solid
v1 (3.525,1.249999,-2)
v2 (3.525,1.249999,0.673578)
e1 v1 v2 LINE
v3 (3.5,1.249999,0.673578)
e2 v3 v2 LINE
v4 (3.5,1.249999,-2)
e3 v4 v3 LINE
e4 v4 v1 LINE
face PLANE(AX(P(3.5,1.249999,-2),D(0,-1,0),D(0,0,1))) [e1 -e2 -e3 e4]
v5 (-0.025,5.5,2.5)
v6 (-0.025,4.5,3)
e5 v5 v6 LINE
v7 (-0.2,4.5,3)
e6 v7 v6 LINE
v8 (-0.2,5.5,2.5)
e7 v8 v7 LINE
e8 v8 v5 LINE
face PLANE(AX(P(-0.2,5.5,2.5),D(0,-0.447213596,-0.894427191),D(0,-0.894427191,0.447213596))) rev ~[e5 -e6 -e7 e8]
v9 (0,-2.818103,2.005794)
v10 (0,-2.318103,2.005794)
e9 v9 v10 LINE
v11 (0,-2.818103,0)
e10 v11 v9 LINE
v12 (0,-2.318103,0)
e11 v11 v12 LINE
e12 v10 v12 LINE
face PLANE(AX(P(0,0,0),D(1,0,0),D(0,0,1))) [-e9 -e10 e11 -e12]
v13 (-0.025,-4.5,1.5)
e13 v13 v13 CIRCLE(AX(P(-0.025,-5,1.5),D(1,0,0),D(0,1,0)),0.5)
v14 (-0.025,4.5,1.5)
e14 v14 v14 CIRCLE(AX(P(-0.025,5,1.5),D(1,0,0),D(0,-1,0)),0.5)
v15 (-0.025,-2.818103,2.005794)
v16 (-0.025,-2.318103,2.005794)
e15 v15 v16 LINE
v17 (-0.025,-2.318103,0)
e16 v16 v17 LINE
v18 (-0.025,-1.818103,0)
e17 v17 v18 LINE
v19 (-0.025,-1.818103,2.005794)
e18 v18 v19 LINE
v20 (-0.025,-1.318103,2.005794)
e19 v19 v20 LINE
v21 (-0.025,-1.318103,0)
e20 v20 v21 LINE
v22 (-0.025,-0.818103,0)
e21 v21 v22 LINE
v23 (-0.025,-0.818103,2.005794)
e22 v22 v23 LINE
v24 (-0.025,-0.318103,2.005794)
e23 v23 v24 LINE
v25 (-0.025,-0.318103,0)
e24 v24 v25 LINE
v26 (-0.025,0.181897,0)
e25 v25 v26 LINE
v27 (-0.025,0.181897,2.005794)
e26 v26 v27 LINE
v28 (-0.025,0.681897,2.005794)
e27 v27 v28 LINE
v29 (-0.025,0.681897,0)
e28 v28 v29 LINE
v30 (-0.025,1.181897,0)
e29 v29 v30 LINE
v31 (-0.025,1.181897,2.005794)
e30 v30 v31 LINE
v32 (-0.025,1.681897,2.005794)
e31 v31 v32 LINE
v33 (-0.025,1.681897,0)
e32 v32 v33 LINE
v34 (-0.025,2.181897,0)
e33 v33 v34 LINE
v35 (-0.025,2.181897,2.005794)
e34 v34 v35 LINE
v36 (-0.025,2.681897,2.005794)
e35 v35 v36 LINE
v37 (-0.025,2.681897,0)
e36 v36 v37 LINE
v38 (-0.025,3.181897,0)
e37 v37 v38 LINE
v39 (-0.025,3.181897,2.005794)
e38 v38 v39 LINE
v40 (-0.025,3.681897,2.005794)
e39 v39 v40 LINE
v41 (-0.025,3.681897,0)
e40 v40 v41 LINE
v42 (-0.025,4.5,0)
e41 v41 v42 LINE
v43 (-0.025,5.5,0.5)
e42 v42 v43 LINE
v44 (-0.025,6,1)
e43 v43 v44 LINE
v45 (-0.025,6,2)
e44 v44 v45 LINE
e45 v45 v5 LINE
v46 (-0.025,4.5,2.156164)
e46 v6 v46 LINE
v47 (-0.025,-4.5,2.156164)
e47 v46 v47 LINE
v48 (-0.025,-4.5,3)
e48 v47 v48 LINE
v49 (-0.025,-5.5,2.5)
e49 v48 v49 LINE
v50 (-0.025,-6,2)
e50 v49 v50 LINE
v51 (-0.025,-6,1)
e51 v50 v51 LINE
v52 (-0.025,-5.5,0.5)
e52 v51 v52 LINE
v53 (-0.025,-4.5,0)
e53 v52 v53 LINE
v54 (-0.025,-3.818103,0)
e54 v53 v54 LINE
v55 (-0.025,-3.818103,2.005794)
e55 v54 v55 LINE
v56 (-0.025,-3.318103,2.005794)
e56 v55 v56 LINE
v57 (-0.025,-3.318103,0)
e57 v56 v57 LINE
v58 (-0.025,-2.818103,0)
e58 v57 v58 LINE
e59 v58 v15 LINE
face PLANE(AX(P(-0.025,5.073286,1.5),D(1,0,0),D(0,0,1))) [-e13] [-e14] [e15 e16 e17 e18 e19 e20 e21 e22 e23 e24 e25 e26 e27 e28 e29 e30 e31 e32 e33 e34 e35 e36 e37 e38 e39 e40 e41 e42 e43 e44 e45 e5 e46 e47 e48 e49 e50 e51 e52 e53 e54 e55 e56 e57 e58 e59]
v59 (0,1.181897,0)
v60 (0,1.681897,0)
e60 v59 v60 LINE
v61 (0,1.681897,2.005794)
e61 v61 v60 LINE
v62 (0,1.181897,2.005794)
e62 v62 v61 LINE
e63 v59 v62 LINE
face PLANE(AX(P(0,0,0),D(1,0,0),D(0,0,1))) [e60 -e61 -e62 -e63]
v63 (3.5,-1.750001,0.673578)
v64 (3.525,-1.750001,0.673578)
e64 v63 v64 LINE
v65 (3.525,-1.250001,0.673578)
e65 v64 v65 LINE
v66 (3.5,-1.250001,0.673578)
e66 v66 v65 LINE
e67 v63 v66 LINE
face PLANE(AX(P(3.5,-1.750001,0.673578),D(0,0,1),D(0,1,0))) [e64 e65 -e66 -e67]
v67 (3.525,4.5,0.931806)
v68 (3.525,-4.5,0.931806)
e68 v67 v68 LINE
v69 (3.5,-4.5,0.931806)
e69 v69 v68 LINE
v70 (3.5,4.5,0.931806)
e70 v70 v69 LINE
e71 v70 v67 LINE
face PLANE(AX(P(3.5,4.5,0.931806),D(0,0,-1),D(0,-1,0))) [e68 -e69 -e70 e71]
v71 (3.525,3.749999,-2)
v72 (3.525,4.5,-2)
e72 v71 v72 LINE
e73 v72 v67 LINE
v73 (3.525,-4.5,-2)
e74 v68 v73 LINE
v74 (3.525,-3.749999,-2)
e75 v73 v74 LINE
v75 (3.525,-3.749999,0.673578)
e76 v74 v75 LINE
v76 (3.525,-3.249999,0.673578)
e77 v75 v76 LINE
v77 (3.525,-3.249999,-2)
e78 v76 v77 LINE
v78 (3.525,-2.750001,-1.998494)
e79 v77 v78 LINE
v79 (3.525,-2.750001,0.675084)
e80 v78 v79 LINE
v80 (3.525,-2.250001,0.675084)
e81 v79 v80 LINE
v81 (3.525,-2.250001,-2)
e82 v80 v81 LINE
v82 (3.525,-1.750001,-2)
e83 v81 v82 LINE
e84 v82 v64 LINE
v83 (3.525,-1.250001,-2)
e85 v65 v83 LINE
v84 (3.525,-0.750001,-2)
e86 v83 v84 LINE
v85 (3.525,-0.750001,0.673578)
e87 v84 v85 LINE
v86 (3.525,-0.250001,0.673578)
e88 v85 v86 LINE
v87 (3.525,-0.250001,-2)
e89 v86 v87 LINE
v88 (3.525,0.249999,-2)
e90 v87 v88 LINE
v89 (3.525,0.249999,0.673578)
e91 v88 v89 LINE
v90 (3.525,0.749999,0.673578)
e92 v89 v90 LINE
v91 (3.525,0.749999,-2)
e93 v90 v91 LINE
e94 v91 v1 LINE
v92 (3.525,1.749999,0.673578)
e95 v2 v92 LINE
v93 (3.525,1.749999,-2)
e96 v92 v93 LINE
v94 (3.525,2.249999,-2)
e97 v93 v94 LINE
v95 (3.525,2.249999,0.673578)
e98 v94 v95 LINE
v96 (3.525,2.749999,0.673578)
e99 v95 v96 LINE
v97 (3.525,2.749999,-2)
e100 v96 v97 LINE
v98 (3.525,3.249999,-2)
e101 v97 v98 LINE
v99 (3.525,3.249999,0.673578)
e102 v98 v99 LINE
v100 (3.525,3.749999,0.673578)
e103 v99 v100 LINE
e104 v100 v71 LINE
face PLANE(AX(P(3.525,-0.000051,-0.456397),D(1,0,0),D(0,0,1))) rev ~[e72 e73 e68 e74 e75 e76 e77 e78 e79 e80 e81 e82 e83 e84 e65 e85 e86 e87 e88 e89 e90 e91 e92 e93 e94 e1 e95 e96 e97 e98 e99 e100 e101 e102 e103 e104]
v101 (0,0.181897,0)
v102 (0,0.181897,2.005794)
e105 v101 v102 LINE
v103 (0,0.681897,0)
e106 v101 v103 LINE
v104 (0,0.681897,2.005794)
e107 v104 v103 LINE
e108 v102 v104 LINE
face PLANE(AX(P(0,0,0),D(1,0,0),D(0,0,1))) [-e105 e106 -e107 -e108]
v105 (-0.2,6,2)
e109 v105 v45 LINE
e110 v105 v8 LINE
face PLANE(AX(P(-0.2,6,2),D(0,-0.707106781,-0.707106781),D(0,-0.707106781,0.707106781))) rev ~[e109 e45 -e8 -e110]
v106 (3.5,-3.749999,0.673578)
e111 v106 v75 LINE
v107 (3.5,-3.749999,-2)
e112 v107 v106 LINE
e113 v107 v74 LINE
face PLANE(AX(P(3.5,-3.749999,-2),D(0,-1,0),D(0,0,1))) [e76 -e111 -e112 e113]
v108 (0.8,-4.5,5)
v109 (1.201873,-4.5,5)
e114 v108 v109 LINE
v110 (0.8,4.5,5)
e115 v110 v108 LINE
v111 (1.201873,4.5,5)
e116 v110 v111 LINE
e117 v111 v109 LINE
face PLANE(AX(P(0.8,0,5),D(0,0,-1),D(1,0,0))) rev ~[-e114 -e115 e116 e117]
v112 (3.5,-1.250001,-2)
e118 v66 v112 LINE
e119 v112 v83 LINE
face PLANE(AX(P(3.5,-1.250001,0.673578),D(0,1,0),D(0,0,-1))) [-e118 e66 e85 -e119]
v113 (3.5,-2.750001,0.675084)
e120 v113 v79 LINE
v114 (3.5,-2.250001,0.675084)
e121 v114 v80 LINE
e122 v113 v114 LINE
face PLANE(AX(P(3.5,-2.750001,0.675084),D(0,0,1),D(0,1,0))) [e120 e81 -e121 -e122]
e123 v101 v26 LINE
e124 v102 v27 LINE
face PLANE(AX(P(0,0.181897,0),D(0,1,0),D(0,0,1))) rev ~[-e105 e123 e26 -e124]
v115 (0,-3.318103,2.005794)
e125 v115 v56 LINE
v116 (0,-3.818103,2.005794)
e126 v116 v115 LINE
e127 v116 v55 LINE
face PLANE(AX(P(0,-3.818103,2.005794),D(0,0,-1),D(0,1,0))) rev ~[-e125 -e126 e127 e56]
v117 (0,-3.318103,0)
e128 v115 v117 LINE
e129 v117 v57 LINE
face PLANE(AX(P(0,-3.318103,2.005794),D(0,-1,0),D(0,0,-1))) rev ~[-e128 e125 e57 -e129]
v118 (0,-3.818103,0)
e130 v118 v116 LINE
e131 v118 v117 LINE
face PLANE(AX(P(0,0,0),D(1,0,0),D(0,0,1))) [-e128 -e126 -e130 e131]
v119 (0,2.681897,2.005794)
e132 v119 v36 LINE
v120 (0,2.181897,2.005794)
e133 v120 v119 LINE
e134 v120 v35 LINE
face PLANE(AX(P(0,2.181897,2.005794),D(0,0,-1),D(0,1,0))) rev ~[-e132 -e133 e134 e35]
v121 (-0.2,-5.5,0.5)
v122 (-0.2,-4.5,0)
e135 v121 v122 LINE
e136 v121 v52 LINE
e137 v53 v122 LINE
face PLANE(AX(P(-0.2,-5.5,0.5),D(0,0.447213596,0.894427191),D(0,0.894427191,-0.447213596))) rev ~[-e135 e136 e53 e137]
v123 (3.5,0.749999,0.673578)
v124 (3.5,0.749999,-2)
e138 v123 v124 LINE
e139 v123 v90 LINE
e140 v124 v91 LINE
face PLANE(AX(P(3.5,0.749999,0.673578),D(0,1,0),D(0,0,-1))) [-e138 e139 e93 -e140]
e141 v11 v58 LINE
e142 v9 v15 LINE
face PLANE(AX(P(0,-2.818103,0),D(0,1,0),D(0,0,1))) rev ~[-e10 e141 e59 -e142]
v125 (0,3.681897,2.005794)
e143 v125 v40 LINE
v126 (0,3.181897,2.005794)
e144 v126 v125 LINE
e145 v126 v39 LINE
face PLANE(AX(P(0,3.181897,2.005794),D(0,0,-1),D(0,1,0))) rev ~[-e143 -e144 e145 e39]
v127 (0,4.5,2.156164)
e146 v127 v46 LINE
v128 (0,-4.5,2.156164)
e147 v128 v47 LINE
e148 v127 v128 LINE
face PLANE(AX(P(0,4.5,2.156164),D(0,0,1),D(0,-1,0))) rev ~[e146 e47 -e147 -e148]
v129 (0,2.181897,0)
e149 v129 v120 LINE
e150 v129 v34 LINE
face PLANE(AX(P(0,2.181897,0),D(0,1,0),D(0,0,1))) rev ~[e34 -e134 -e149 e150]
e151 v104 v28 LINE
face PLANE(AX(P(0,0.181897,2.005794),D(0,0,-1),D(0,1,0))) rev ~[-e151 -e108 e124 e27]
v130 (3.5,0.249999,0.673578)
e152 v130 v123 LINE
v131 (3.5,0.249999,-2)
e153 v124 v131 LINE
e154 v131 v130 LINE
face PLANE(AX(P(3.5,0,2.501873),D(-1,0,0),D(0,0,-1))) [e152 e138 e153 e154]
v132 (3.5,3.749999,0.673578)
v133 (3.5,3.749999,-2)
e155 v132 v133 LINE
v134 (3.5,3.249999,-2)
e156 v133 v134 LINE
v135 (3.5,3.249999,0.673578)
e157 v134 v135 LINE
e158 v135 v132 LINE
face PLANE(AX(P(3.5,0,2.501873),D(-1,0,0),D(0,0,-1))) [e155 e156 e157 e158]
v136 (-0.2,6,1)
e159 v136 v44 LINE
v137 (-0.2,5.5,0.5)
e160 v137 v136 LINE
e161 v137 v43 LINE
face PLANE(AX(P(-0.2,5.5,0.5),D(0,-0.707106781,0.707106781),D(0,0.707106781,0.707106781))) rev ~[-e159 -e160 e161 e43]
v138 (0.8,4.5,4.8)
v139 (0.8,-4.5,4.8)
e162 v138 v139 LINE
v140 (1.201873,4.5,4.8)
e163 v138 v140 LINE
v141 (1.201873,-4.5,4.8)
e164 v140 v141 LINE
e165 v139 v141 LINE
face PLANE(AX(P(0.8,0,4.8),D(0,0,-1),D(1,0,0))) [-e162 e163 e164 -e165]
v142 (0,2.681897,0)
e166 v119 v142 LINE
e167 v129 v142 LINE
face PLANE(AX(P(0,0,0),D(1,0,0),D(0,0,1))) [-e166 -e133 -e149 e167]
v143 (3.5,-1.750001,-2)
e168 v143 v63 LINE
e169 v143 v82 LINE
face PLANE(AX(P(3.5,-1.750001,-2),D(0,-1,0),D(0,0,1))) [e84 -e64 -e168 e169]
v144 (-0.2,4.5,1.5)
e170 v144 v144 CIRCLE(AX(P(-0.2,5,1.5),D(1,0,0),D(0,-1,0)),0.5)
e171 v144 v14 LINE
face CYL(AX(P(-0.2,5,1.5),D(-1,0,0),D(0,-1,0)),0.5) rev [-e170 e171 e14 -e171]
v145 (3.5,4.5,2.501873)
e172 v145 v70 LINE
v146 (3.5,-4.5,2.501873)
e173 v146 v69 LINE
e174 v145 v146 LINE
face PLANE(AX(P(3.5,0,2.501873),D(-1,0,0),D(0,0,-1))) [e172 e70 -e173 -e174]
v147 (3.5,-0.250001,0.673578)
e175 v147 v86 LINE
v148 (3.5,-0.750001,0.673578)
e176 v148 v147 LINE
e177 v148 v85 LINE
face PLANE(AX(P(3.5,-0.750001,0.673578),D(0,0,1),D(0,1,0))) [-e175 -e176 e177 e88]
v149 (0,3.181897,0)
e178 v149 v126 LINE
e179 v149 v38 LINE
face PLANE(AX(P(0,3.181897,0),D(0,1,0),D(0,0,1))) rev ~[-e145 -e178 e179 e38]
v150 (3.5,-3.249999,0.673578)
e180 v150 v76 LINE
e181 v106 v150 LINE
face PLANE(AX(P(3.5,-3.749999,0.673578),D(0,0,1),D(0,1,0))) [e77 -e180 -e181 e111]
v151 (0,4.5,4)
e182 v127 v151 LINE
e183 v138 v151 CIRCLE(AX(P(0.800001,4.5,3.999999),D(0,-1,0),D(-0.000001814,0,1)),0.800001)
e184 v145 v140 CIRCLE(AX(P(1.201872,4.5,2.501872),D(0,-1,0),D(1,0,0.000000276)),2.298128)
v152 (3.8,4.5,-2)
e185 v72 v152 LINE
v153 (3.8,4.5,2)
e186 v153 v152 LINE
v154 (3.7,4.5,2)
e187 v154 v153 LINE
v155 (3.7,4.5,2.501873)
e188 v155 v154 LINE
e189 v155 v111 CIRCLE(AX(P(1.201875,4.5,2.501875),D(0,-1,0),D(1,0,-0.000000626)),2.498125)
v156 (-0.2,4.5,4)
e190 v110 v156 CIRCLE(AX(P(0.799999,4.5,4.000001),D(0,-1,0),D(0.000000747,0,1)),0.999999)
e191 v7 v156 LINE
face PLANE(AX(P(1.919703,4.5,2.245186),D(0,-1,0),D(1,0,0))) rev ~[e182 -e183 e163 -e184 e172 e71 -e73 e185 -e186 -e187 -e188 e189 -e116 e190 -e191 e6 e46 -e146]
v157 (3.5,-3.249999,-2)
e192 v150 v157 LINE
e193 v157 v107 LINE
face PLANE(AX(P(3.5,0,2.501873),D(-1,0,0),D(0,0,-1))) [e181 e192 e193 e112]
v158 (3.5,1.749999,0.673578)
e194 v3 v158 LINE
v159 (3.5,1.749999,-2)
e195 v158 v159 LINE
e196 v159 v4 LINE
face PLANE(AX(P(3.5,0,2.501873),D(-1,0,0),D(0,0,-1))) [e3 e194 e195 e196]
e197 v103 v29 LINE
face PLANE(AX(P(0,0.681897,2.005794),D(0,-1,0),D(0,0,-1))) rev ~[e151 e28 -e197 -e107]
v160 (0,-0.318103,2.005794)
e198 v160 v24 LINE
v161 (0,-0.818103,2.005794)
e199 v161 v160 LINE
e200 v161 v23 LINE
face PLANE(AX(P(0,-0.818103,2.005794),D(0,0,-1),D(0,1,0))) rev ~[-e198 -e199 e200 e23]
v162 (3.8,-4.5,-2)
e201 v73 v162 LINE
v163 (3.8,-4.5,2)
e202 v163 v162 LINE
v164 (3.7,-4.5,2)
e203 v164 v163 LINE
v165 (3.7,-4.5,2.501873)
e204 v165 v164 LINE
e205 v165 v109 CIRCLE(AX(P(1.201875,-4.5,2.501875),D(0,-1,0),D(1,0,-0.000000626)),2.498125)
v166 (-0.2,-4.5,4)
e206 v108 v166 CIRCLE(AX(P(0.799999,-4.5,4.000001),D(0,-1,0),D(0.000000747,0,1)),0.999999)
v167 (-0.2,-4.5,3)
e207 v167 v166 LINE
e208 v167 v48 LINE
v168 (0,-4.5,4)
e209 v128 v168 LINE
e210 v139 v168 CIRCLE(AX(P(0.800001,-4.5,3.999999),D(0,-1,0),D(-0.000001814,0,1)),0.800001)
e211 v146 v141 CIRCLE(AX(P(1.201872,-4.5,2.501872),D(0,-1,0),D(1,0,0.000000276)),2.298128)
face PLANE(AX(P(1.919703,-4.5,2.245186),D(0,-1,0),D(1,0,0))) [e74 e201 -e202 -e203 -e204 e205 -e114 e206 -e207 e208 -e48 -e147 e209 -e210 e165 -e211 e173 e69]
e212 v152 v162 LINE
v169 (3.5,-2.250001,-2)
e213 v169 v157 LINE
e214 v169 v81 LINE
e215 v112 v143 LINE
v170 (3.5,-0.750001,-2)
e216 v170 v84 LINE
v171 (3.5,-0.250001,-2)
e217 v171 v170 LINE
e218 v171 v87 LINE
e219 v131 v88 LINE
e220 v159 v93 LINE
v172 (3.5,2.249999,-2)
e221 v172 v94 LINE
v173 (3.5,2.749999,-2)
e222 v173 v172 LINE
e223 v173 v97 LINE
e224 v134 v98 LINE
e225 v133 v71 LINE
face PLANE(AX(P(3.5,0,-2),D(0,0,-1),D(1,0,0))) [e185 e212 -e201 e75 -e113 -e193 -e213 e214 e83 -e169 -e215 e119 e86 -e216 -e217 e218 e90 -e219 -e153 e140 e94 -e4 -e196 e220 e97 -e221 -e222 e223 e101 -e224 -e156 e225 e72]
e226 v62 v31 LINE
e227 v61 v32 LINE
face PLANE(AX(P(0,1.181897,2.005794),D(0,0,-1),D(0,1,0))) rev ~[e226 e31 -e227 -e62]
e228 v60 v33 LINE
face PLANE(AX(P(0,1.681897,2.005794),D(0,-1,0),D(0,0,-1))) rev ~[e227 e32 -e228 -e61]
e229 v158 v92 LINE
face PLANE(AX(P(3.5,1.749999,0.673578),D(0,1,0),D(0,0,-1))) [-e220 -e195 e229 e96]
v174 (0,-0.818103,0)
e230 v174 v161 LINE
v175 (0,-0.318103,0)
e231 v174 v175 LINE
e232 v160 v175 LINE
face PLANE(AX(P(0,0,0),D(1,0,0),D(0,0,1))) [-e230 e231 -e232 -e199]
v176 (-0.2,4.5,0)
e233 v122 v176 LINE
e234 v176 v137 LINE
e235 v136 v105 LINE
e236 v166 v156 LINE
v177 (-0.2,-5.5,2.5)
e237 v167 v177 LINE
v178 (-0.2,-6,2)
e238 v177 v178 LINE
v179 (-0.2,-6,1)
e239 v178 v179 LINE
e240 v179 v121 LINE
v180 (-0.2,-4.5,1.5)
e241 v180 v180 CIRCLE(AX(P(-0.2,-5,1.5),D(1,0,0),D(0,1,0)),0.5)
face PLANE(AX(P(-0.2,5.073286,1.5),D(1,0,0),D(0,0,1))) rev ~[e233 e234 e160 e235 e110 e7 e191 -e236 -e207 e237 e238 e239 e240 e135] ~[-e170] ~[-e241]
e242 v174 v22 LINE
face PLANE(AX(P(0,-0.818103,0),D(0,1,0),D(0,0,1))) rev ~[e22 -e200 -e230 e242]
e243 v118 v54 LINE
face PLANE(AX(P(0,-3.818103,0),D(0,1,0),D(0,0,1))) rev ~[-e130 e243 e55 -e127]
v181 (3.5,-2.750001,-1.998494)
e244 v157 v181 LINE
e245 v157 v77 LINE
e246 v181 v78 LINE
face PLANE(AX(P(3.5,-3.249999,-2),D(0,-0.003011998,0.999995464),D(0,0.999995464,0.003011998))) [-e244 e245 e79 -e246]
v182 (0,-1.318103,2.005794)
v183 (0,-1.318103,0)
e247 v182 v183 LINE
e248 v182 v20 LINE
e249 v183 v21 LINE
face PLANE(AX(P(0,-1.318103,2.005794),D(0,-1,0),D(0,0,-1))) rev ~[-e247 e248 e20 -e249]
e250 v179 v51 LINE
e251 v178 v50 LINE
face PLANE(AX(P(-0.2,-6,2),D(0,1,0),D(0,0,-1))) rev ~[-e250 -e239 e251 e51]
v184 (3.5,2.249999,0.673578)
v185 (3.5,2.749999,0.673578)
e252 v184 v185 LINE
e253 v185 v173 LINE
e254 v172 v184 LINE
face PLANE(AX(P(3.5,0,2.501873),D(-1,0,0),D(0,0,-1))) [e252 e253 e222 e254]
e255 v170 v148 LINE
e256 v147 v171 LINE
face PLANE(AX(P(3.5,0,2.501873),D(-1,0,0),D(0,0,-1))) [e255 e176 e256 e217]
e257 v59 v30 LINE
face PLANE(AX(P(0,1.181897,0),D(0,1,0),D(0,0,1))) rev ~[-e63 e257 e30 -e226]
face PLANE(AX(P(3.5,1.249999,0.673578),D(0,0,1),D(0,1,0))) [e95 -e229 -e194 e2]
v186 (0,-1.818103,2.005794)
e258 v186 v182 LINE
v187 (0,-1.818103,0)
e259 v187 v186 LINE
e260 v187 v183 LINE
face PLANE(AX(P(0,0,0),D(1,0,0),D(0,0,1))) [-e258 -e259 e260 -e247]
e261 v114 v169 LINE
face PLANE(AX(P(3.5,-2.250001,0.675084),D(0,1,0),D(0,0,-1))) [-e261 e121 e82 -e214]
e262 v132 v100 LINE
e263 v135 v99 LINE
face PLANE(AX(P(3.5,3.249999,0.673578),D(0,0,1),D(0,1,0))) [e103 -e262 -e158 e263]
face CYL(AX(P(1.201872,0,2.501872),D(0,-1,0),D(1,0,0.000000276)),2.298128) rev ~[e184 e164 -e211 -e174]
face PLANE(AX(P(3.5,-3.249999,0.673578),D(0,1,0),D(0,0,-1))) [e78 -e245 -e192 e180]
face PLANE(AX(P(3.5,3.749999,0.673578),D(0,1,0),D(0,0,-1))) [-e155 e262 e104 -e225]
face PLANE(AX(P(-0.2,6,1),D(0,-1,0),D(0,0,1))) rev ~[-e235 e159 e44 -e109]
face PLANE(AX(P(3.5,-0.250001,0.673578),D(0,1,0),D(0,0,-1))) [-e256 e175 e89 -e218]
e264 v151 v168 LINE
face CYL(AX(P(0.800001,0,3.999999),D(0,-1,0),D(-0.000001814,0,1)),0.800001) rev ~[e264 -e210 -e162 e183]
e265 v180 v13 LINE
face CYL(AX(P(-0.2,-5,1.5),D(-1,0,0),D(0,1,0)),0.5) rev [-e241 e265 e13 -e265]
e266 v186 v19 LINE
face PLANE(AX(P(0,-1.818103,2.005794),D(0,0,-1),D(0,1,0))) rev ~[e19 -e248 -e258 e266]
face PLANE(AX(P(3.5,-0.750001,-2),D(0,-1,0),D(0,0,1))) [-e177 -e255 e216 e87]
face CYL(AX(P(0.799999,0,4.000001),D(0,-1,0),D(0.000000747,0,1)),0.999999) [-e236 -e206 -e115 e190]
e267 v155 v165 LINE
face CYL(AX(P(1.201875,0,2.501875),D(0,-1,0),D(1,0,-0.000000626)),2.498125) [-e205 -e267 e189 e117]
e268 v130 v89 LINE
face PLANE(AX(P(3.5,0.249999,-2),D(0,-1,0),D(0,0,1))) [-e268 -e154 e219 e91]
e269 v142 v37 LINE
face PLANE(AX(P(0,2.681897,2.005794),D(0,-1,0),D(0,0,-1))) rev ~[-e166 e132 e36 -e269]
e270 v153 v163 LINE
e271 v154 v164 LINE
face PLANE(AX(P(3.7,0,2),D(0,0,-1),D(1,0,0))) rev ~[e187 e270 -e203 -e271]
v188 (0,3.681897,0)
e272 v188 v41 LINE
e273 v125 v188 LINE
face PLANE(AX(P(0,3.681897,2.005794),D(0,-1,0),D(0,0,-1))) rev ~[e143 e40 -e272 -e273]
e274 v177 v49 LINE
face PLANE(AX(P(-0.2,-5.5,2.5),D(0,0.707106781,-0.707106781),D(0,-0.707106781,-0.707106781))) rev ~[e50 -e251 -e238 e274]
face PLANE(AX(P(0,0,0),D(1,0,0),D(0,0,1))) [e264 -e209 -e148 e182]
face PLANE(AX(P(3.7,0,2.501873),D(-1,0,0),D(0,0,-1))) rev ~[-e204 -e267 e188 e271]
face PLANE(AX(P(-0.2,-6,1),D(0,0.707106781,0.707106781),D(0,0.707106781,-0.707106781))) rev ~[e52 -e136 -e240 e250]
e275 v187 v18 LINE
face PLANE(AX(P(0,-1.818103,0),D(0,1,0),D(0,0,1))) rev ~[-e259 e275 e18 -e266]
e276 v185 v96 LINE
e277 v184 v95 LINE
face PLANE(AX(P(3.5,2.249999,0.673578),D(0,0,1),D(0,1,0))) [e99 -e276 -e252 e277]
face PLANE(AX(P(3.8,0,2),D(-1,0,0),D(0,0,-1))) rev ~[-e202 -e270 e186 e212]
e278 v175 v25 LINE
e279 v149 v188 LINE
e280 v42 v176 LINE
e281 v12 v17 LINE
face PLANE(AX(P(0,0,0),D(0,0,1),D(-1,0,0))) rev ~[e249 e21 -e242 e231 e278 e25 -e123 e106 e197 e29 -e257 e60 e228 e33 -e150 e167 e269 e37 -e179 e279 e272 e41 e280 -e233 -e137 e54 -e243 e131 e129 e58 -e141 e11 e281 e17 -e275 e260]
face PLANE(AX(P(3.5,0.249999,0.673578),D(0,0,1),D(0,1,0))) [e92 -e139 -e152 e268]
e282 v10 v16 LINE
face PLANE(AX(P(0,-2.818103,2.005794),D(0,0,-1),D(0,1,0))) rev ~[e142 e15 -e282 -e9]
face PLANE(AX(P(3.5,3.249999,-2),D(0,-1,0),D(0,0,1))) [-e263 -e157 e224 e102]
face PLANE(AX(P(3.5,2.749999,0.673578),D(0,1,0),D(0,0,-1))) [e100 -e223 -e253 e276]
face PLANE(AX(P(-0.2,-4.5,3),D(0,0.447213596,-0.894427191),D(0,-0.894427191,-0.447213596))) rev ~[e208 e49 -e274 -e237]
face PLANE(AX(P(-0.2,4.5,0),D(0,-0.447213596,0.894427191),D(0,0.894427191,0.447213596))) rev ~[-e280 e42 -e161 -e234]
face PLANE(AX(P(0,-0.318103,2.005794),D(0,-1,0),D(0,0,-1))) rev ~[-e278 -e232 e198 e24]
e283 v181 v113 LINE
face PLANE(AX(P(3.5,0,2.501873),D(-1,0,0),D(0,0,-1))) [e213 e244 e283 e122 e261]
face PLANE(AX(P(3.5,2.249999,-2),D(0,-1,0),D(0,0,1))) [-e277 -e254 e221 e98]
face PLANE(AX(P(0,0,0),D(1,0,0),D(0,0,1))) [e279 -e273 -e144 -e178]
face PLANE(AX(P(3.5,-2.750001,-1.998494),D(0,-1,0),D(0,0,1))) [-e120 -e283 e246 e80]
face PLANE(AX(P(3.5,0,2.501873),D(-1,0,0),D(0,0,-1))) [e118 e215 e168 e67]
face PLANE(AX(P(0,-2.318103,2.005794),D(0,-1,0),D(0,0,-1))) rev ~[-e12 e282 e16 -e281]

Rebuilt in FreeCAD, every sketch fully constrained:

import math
import FreeCAD as App
import Part
import Sketcher
from FreeCAD import Vector
Q = App.Units.Quantity

doc = App.newDocument("Part")
params = doc.addObject("Spreadsheet::Sheet", "Params")
for row, (alias, value) in enumerate([
    ("sketch1_radius", "0.999999 mm"),
    ("sketch1_radius2", "0.800001 mm"),
    ("sketch1_height", "4 mm"),
    ("sketch1_width", "0.3 mm"),
    ("pad1_length", "9 mm"),
    ("sketch2_width", "9 mm"),
    ("sketch2_width2", "0.5 mm"),
    ("pocket1_length", "0.025 mm"),
    ("sketch3_width", "9 mm"),
    ("sketch3_width2", "0.5 mm"),
    ("pocket2_length", "0.025 mm"),
    ("sketch4_diameter", "1 mm"),
    ("sketch4_height", "1 mm"),
    ("sketch4_height2", "1.5 mm"),
    ("pad2_length", "0.175 mm"),
], start=1):
    params.set(f"A{row}", alias)
    params.set(f"B{row}", "=" + value)
    params.setAlias(f"B{row}", alias)

body = doc.addObject("PartDesign::Body", "Body")

# Sketch on XZ plane
sketch1 = body.newObject("Sketcher::SketchObject", "Sketch")
sketch1.AttachmentSupport = (doc.getObject("XZ_Plane"), [""])
sketch1.MapMode = "FlatFace"
sketch1.addGeometry([
    Part.LineSegment(Vector(0, 0, 0), Vector(0, 4, 0)),  # 0
    Part.ArcOfCircle(Part.Circle(Vector(0.8, 4, 0), Vector(0, 0, 1), 0.8), math.radians(90), math.radians(180)),  # 1
    Part.LineSegment(Vector(0.8, 4.8, 0), Vector(1.2, 4.8, 0)),  # 2
    Part.ArcOfCircle(Part.Circle(Vector(1.2, 2.5, 0), Vector(0, 0, 1), 2.3), math.radians(0), math.radians(90)),  # 3
    Part.LineSegment(Vector(3.5, 2.5, 0), Vector(3.5, -2, 0)),  # 4
    Part.LineSegment(Vector(3.5, -2, 0), Vector(3.8, -2, 0)),  # 5
    Part.LineSegment(Vector(3.8, -2, 0), Vector(3.8, 2, 0)),  # 6
    Part.LineSegment(Vector(3.8, 2, 0), Vector(3.7, 2, 0)),  # 7
    Part.LineSegment(Vector(3.7, 2, 0), Vector(3.7, 2.5, 0)),  # 8
    Part.ArcOfCircle(Part.Circle(Vector(1.2, 2.5, 0), Vector(0, 0, 1), 2.5), math.radians(0), math.radians(90)),  # 9
    Part.LineSegment(Vector(1.2, 5, 0), Vector(0.8, 5, 0)),  # 10
    Part.ArcOfCircle(Part.Circle(Vector(0.8, 4, 0), Vector(0, 0, 1), 1), math.radians(90), math.radians(180)),  # 11
    Part.LineSegment(Vector(-0.2, 4, 0), Vector(-0.2, 0, 0)),  # 12
    Part.LineSegment(Vector(-0.2, 0, 0), Vector(0, 0, 0)),  # 13
], False)
sketch1.addConstraint([
    Sketcher.Constraint("Tangent", 0, 2, 1, 2),
    Sketcher.Constraint("Tangent", 1, 1, 2, 1),
    Sketcher.Constraint("Tangent", 2, 2, 3, 2),
    Sketcher.Constraint("Tangent", 3, 1, 4, 1),
    Sketcher.Constraint("Coincident", 4, 2, 5, 1),
    Sketcher.Constraint("Coincident", 5, 2, 6, 1),
    Sketcher.Constraint("Coincident", 6, 2, 7, 1),
    Sketcher.Constraint("Coincident", 7, 2, 8, 1),
    Sketcher.Constraint("Tangent", 8, 2, 9, 1),
    Sketcher.Constraint("Tangent", 9, 2, 10, 1),
    Sketcher.Constraint("Tangent", 10, 2, 11, 1),
    Sketcher.Constraint("Tangent", 11, 2, 12, 1),
    Sketcher.Constraint("Coincident", 12, 2, 13, 1),
    Sketcher.Constraint("Coincident", 13, 2, 0, 1),
    Sketcher.Constraint("Vertical", 0),
    Sketcher.Constraint("Horizontal", 2),
    Sketcher.Constraint("Vertical", 4),
    Sketcher.Constraint("Horizontal", 5),
    Sketcher.Constraint("Vertical", 6),
    Sketcher.Constraint("Horizontal", 7),
    Sketcher.Constraint("Vertical", 8),
    Sketcher.Constraint("Horizontal", 10),
    Sketcher.Constraint("Vertical", 12),
    Sketcher.Constraint("Horizontal", 13),
    Sketcher.Constraint("Coincident", 13, 2, -1, 1),
    Sketcher.Constraint("Coincident", 9, 3, 3, 3),
    Sketcher.Constraint("Coincident", 11, 3, 1, 3),
    Sketcher.Constraint("Equal", 0, 6),
    Sketcher.Constraint("Radius", 11, Q("0.999999 mm")),
    Sketcher.Constraint("Radius", 1, Q("0.800001 mm")),
    Sketcher.Constraint("DistanceY", 0, 1, 0, 2, Q("4 mm")),
    Sketcher.Constraint("DistanceX", 5, 1, 5, 2, Q("0.3 mm")),
    Sketcher.Constraint("DistanceY", 4, 2, -1, 1, Q("2 mm")),
    Sketcher.Constraint("DistanceX", 1, 3, 5, 2, Q("2.999999 mm")),
    Sketcher.Constraint("Radius", 3, Q("2.298128 mm")),
])
sketch1.setExpression("Constraints[28]", "Params.sketch1_radius")
sketch1.setExpression("Constraints[29]", "Params.sketch1_radius2")
sketch1.setExpression("Constraints[30]", "Params.sketch1_height")
sketch1.setExpression("Constraints[31]", "Params.sketch1_width")
pad1 = body.newObject("PartDesign::Pad", "Pad")
pad1.Profile = sketch1
pad1.setExpression("Length", "Params.pad1_length")
pad1.Midplane = True

# Sketch on YZ plane
sketch2 = body.newObject("Sketcher::SketchObject", "Sketch001")
sketch2.AttachmentSupport = (doc.getObject("YZ_Plane"), [""])
sketch2.MapMode = "FlatFace"
sketch2.addGeometry([
    Part.LineSegment(Vector(-3.82, 0, 0), Vector(-3.82, 2.01, 0)),  # 0
    Part.LineSegment(Vector(-3.82, 2.01, 0), Vector(-3.32, 2.01, 0)),  # 1
    Part.LineSegment(Vector(-3.32, 2.01, 0), Vector(-3.32, 0, 0)),  # 2
    Part.LineSegment(Vector(-3.32, 0, 0), Vector(-2.82, 0, 0)),  # 3
    Part.LineSegment(Vector(-2.82, 0, 0), Vector(-2.82, 2.01, 0)),  # 4
    Part.LineSegment(Vector(-2.82, 2.01, 0), Vector(-2.32, 2.01, 0)),  # 5
    Part.LineSegment(Vector(-2.32, 2.01, 0), Vector(-2.32, 0, 0)),  # 6
    Part.LineSegment(Vector(-2.32, 0, 0), Vector(-1.82, 0, 0)),  # 7
    Part.LineSegment(Vector(-1.82, 0, 0), Vector(-1.82, 2.01, 0)),  # 8
    Part.LineSegment(Vector(-1.82, 2.01, 0), Vector(-1.32, 2.01, 0)),  # 9
    Part.LineSegment(Vector(-1.32, 2.01, 0), Vector(-1.32, 0, 0)),  # 10
    Part.LineSegment(Vector(-1.32, 0, 0), Vector(-0.82, 0, 0)),  # 11
    Part.LineSegment(Vector(-0.82, 0, 0), Vector(-0.82, 2.01, 0)),  # 12
    Part.LineSegment(Vector(-0.82, 2.01, 0), Vector(-0.32, 2.01, 0)),  # 13
    Part.LineSegment(Vector(-0.32, 2.01, 0), Vector(-0.32, 0, 0)),  # 14
    Part.LineSegment(Vector(-0.32, 0, 0), Vector(0.18, 0, 0)),  # 15
    Part.LineSegment(Vector(0.18, 0, 0), Vector(0.18, 2.01, 0)),  # 16
    Part.LineSegment(Vector(0.18, 2.01, 0), Vector(0.68, 2.01, 0)),  # 17
    Part.LineSegment(Vector(0.68, 2.01, 0), Vector(0.68, 0, 0)),  # 18
    Part.LineSegment(Vector(0.68, 0, 0), Vector(1.18, 0, 0)),  # 19
    Part.LineSegment(Vector(1.18, 0, 0), Vector(1.18, 2.01, 0)),  # 20
    Part.LineSegment(Vector(1.18, 2.01, 0), Vector(1.68, 2.01, 0)),  # 21
    Part.LineSegment(Vector(1.68, 2.01, 0), Vector(1.68, 0, 0)),  # 22
    Part.LineSegment(Vector(1.68, 0, 0), Vector(2.18, 0, 0)),  # 23
    Part.LineSegment(Vector(2.18, 0, 0), Vector(2.18, 2.01, 0)),  # 24
    Part.LineSegment(Vector(2.18, 2.01, 0), Vector(2.68, 2.01, 0)),  # 25
    Part.LineSegment(Vector(2.68, 2.01, 0), Vector(2.68, 0, 0)),  # 26
    Part.LineSegment(Vector(2.68, 0, 0), Vector(3.18, 0, 0)),  # 27
    Part.LineSegment(Vector(3.18, 0, 0), Vector(3.18, 2.01, 0)),  # 28
    Part.LineSegment(Vector(3.18, 2.01, 0), Vector(3.68, 2.01, 0)),  # 29
    Part.LineSegment(Vector(3.68, 2.01, 0), Vector(3.68, 0, 0)),  # 30
    Part.LineSegment(Vector(3.68, 0, 0), Vector(4.5, 0, 0)),  # 31
    Part.LineSegment(Vector(4.5, 0, 0), Vector(4.5, 2.16, 0)),  # 32
    Part.LineSegment(Vector(4.5, 2.16, 0), Vector(-4.5, 2.16, 0)),  # 33
    Part.LineSegment(Vector(-4.5, 2.16, 0), Vector(-4.5, 0, 0)),  # 34
    Part.LineSegment(Vector(-4.5, 0, 0), Vector(-3.82, 0, 0)),  # 35
], False)
sketch2.addConstraint([
    Sketcher.Constraint("Coincident", 0, 2, 1, 1),
    Sketcher.Constraint("Coincident", 1, 2, 2, 1),
    Sketcher.Constraint("Coincident", 2, 2, 3, 1),
    Sketcher.Constraint("Coincident", 3, 2, 4, 1),
    Sketcher.Constraint("Coincident", 4, 2, 5, 1),
    Sketcher.Constraint("Coincident", 5, 2, 6, 1),
    Sketcher.Constraint("Coincident", 6, 2, 7, 1),
    Sketcher.Constraint("Coincident", 7, 2, 8, 1),
    Sketcher.Constraint("Coincident", 8, 2, 9, 1),
    Sketcher.Constraint("Coincident", 9, 2, 10, 1),
    Sketcher.Constraint("Coincident", 10, 2, 11, 1),
    Sketcher.Constraint("Coincident", 11, 2, 12, 1),
    Sketcher.Constraint("Coincident", 12, 2, 13, 1),
    Sketcher.Constraint("Coincident", 13, 2, 14, 1),
    Sketcher.Constraint("Coincident", 14, 2, 15, 1),
    Sketcher.Constraint("Coincident", 15, 2, 16, 1),
    Sketcher.Constraint("Coincident", 16, 2, 17, 1),
    Sketcher.Constraint("Coincident", 17, 2, 18, 1),
    Sketcher.Constraint("Coincident", 18, 2, 19, 1),
    Sketcher.Constraint("Coincident", 19, 2, 20, 1),
    Sketcher.Constraint("Coincident", 20, 2, 21, 1),
    Sketcher.Constraint("Coincident", 21, 2, 22, 1),
    Sketcher.Constraint("Coincident", 22, 2, 23, 1),
    Sketcher.Constraint("Coincident", 23, 2, 24, 1),
    Sketcher.Constraint("Coincident", 24, 2, 25, 1),
    Sketcher.Constraint("Coincident", 25, 2, 26, 1),
    Sketcher.Constraint("Coincident", 26, 2, 27, 1),
    Sketcher.Constraint("Coincident", 27, 2, 28, 1),
    Sketcher.Constraint("Coincident", 28, 2, 29, 1),
    Sketcher.Constraint("Coincident", 29, 2, 30, 1),
    Sketcher.Constraint("Coincident", 30, 2, 31, 1),
    Sketcher.Constraint("Coincident", 31, 2, 32, 1),
    Sketcher.Constraint("Coincident", 32, 2, 33, 1),
    Sketcher.Constraint("Coincident", 33, 2, 34, 1),
    Sketcher.Constraint("Coincident", 34, 2, 35, 1),
    Sketcher.Constraint("Coincident", 35, 2, 0, 1),
    Sketcher.Constraint("Vertical", 0),
    Sketcher.Constraint("Horizontal", 1),
    Sketcher.Constraint("Vertical", 2),
    Sketcher.Constraint("Horizontal", 3),
    Sketcher.Constraint("Vertical", 4),
    Sketcher.Constraint("Horizontal", 5),
    Sketcher.Constraint("Vertical", 6),
    Sketcher.Constraint("Horizontal", 7),
    Sketcher.Constraint("Vertical", 8),
    Sketcher.Constraint("Horizontal", 9),
    Sketcher.Constraint("Vertical", 10),
    Sketcher.Constraint("Horizontal", 11),
    Sketcher.Constraint("Vertical", 12),
    Sketcher.Constraint("Horizontal", 13),
    Sketcher.Constraint("Vertical", 14),
    Sketcher.Constraint("Horizontal", 15),
    Sketcher.Constraint("Vertical", 16),
    Sketcher.Constraint("Horizontal", 17),
    Sketcher.Constraint("Vertical", 18),
    Sketcher.Constraint("Horizontal", 19),
    Sketcher.Constraint("Vertical", 20),
    Sketcher.Constraint("Horizontal", 21),
    Sketcher.Constraint("Vertical", 22),
    Sketcher.Constraint("Horizontal", 23),
    Sketcher.Constraint("Vertical", 24),
    Sketcher.Constraint("Horizontal", 25),
    Sketcher.Constraint("Vertical", 26),
    Sketcher.Constraint("Horizontal", 27),
    Sketcher.Constraint("Vertical", 28),
    Sketcher.Constraint("Horizontal", 29),
    Sketcher.Constraint("Vertical", 30),
    Sketcher.Constraint("Horizontal", 31),
    Sketcher.Constraint("Vertical", 32),
    Sketcher.Constraint("Horizontal", 33),
    Sketcher.Constraint("Vertical", 34),
    Sketcher.Constraint("Horizontal", 35),
    Sketcher.Constraint("Symmetric", 31, 2, 34, 2, -1, 1),
    Sketcher.Constraint("PointOnObject", 2, 2, -1),
    Sketcher.Constraint("PointOnObject", 6, 2, -1),
    Sketcher.Constraint("PointOnObject", 10, 2, -1),
    Sketcher.Constraint("PointOnObject", 14, 2, -1),
    Sketcher.Constraint("PointOnObject", 18, 2, -1),
    Sketcher.Constraint("PointOnObject", 22, 2, -1),
    Sketcher.Constraint("PointOnObject", 26, 2, -1),
    Sketcher.Constraint("PointOnObject", 30, 2, -1),
    Sketcher.Constraint("Horizontal", 1, 2, 4, 2),
    Sketcher.Constraint("Horizontal", 5, 2, 8, 2),
    Sketcher.Constraint("Horizontal", 9, 2, 12, 2),
    Sketcher.Constraint("Horizontal", 13, 2, 16, 2),
    Sketcher.Constraint("Horizontal", 17, 2, 20, 2),
    Sketcher.Constraint("Horizontal", 21, 2, 24, 2),
    Sketcher.Constraint("Horizontal", 25, 2, 28, 2),
    Sketcher.Constraint("Equal", 1, 3),
    Sketcher.Constraint("Equal", 3, 5),
    Sketcher.Constraint("Equal", 5, 7),
    Sketcher.Constraint("Equal", 7, 9),
    Sketcher.Constraint("Equal", 9, 11),
    Sketcher.Constraint("Equal", 11, 13),
    Sketcher.Constraint("Equal", 13, 15),
    Sketcher.Constraint("Equal", 15, 17),
    Sketcher.Constraint("Equal", 17, 19),
    Sketcher.Constraint("Equal", 19, 21),
    Sketcher.Constraint("Equal", 21, 23),
    Sketcher.Constraint("Equal", 23, 25),
    Sketcher.Constraint("Equal", 25, 27),
    Sketcher.Constraint("Equal", 27, 29),
    Sketcher.Constraint("DistanceX", 33, 2, 33, 1, Q("9 mm")),
    Sketcher.Constraint("DistanceX", 1, 1, 1, 2, Q("0.5 mm")),
    Sketcher.Constraint("DistanceX", 31, 1, 31, 2, Q("0.818103 mm")),
    Sketcher.Constraint("DistanceY", 0, 1, 0, 2, Q("2.005794 mm")),
    Sketcher.Constraint("DistanceY", 32, 1, 32, 2, Q("2.156164 mm")),
])
sketch2.setExpression("Constraints[102]", "Params.sketch2_width")
sketch2.setExpression("Constraints[103]", "Params.sketch2_width2")
pocket1 = body.newObject("PartDesign::Pocket", "Pocket")
pocket1.Profile = sketch2
pocket1.setExpression("Length", "Params.pocket1_length")

# Sketch on YZ plane
sketch3 = body.newObject("Sketcher::SketchObject", "Sketch002")
sketch3.AttachmentSupport = (doc.getObject("YZ_Plane"), [""])
sketch3.MapMode = "FlatFace"
sketch3.AttachmentOffset = App.Placement(Vector(0, 0, 3.5), App.Rotation())
sketch3.addGeometry([
    Part.LineSegment(Vector(-3.75, 0.67, 0), Vector(-3.75, -2, 0)),  # 0
    Part.LineSegment(Vector(-3.75, -2, 0), Vector(-4.5, -2, 0)),  # 1
    Part.LineSegment(Vector(-4.5, -2, 0), Vector(-4.5, 0.93, 0)),  # 2
    Part.LineSegment(Vector(-4.5, 0.93, 0), Vector(4.5, 0.93, 0)),  # 3
    Part.LineSegment(Vector(4.5, 0.93, 0), Vector(4.5, -2, 0)),  # 4
    Part.LineSegment(Vector(4.5, -2, 0), Vector(3.75, -2, 0)),  # 5
    Part.LineSegment(Vector(3.75, -2, 0), Vector(3.75, 0.67, 0)),  # 6
    Part.LineSegment(Vector(3.75, 0.67, 0), Vector(3.25, 0.67, 0)),  # 7
    Part.LineSegment(Vector(3.25, 0.67, 0), Vector(3.25, -2, 0)),  # 8
    Part.LineSegment(Vector(3.25, -2, 0), Vector(2.75, -2, 0)),  # 9
    Part.LineSegment(Vector(2.75, -2, 0), Vector(2.75, 0.67, 0)),  # 10
    Part.LineSegment(Vector(2.75, 0.67, 0), Vector(2.25, 0.67, 0)),  # 11
    Part.LineSegment(Vector(2.25, 0.67, 0), Vector(2.25, -2, 0)),  # 12
    Part.LineSegment(Vector(2.25, -2, 0), Vector(1.75, -2, 0)),  # 13
    Part.LineSegment(Vector(1.75, -2, 0), Vector(1.75, 0.67, 0)),  # 14
    Part.LineSegment(Vector(1.75, 0.67, 0), Vector(1.25, 0.67, 0)),  # 15
    Part.LineSegment(Vector(1.25, 0.67, 0), Vector(1.25, -2, 0)),  # 16
    Part.LineSegment(Vector(1.25, -2, 0), Vector(0.75, -2, 0)),  # 17
    Part.LineSegment(Vector(0.75, -2, 0), Vector(0.75, 0.67, 0)),  # 18
    Part.LineSegment(Vector(0.75, 0.67, 0), Vector(0.25, 0.67, 0)),  # 19
    Part.LineSegment(Vector(0.25, 0.67, 0), Vector(0.25, -2, 0)),  # 20
    Part.LineSegment(Vector(0.25, -2, 0), Vector(-0.25, -2, 0)),  # 21
    Part.LineSegment(Vector(-0.25, -2, 0), Vector(-0.25, 0.67, 0)),  # 22
    Part.LineSegment(Vector(-0.25, 0.67, 0), Vector(-0.75, 0.67, 0)),  # 23
    Part.LineSegment(Vector(-0.75, 0.67, 0), Vector(-0.75, -2, 0)),  # 24
    Part.LineSegment(Vector(-0.75, -2, 0), Vector(-1.25, -2, 0)),  # 25
    Part.LineSegment(Vector(-1.25, -2, 0), Vector(-1.25, 0.67, 0)),  # 26
    Part.LineSegment(Vector(-1.25, 0.67, 0), Vector(-1.75, 0.67, 0)),  # 27
    Part.LineSegment(Vector(-1.75, 0.67, 0), Vector(-1.75, -2, 0)),  # 28
    Part.LineSegment(Vector(-1.75, -2, 0), Vector(-2.25, -2, 0)),  # 29
    Part.LineSegment(Vector(-2.25, -2, 0), Vector(-2.25, 0.68, 0)),  # 30
    Part.LineSegment(Vector(-2.25, 0.68, 0), Vector(-2.75, 0.68, 0)),  # 31
    Part.LineSegment(Vector(-2.75, 0.68, 0), Vector(-2.75, -2, 0)),  # 32
    Part.LineSegment(Vector(-2.75, -2, 0), Vector(-3.25, -2, 0)),  # 33
    Part.LineSegment(Vector(-3.25, -2, 0), Vector(-3.25, 0.67, 0)),  # 34
    Part.LineSegment(Vector(-3.25, 0.67, 0), Vector(-3.75, 0.67, 0)),  # 35
], False)
sketch3.addConstraint([
    Sketcher.Constraint("Coincident", 0, 2, 1, 1),
    Sketcher.Constraint("Coincident", 1, 2, 2, 1),
    Sketcher.Constraint("Coincident", 2, 2, 3, 1),
    Sketcher.Constraint("Coincident", 3, 2, 4, 1),
    Sketcher.Constraint("Coincident", 4, 2, 5, 1),
    Sketcher.Constraint("Coincident", 5, 2, 6, 1),
    Sketcher.Constraint("Coincident", 6, 2, 7, 1),
    Sketcher.Constraint("Coincident", 7, 2, 8, 1),
    Sketcher.Constraint("Coincident", 8, 2, 9, 1),
    Sketcher.Constraint("Coincident", 9, 2, 10, 1),
    Sketcher.Constraint("Coincident", 10, 2, 11, 1),
    Sketcher.Constraint("Coincident", 11, 2, 12, 1),
    Sketcher.Constraint("Coincident", 12, 2, 13, 1),
    Sketcher.Constraint("Coincident", 13, 2, 14, 1),
    Sketcher.Constraint("Coincident", 14, 2, 15, 1),
    Sketcher.Constraint("Coincident", 15, 2, 16, 1),
    Sketcher.Constraint("Coincident", 16, 2, 17, 1),
    Sketcher.Constraint("Coincident", 17, 2, 18, 1),
    Sketcher.Constraint("Coincident", 18, 2, 19, 1),
    Sketcher.Constraint("Coincident", 19, 2, 20, 1),
    Sketcher.Constraint("Coincident", 20, 2, 21, 1),
    Sketcher.Constraint("Coincident", 21, 2, 22, 1),
    Sketcher.Constraint("Coincident", 22, 2, 23, 1),
    Sketcher.Constraint("Coincident", 23, 2, 24, 1),
    Sketcher.Constraint("Coincident", 24, 2, 25, 1),
    Sketcher.Constraint("Coincident", 25, 2, 26, 1),
    Sketcher.Constraint("Coincident", 26, 2, 27, 1),
    Sketcher.Constraint("Coincident", 27, 2, 28, 1),
    Sketcher.Constraint("Coincident", 28, 2, 29, 1),
    Sketcher.Constraint("Coincident", 29, 2, 30, 1),
    Sketcher.Constraint("Coincident", 30, 2, 31, 1),
    Sketcher.Constraint("Coincident", 31, 2, 32, 1),
    Sketcher.Constraint("Coincident", 32, 2, 33, 1),
    Sketcher.Constraint("Coincident", 33, 2, 34, 1),
    Sketcher.Constraint("Coincident", 34, 2, 35, 1),
    Sketcher.Constraint("Coincident", 35, 2, 0, 1),
    Sketcher.Constraint("Vertical", 0),
    Sketcher.Constraint("Horizontal", 1),
    Sketcher.Constraint("Vertical", 2),
    Sketcher.Constraint("Horizontal", 3),
    Sketcher.Constraint("Vertical", 4),
    Sketcher.Constraint("Horizontal", 5),
    Sketcher.Constraint("Vertical", 6),
    Sketcher.Constraint("Horizontal", 7),
    Sketcher.Constraint("Vertical", 8),
    Sketcher.Constraint("Horizontal", 9),
    Sketcher.Constraint("Vertical", 10),
    Sketcher.Constraint("Horizontal", 11),
    Sketcher.Constraint("Vertical", 12),
    Sketcher.Constraint("Horizontal", 13),
    Sketcher.Constraint("Vertical", 14),
    Sketcher.Constraint("Horizontal", 15),
    Sketcher.Constraint("Vertical", 16),
    Sketcher.Constraint("Horizontal", 17),
    Sketcher.Constraint("Vertical", 18),
    Sketcher.Constraint("Horizontal", 19),
    Sketcher.Constraint("Vertical", 20),
    Sketcher.Constraint("Horizontal", 21),
    Sketcher.Constraint("Vertical", 22),
    Sketcher.Constraint("Horizontal", 23),
    Sketcher.Constraint("Vertical", 24),
    Sketcher.Constraint("Horizontal", 25),
    Sketcher.Constraint("Vertical", 26),
    Sketcher.Constraint("Horizontal", 27),
    Sketcher.Constraint("Vertical", 28),
    Sketcher.Constraint("Horizontal", 29),
    Sketcher.Constraint("Vertical", 30),
    Sketcher.Constraint("Horizontal", 31),
    Sketcher.Constraint("Vertical", 32),
    Sketcher.Constraint("Vertical", 34),
    Sketcher.Constraint("Horizontal", 35),
    Sketcher.Constraint("Symmetric", 1, 2, 4, 2, -2),
    Sketcher.Constraint("Symmetric", 19, 2, 22, 2, -2),
    Sketcher.Constraint("Symmetric", 17, 2, 24, 2, -2),
    Sketcher.Constraint("Symmetric", 15, 2, 26, 2, -2),
    Sketcher.Constraint("Symmetric", 13, 2, 28, 2, -2),
    Sketcher.Constraint("Symmetric", 8, 2, 33, 2, -2),
    Sketcher.Constraint("Symmetric", 6, 2, 35, 2, -2),
    Sketcher.Constraint("Horizontal", 5, 2, 8, 2),
    Sketcher.Constraint("Horizontal", 7, 2, 10, 2),
    Sketcher.Constraint("Horizontal", 9, 2, 12, 2),
    Sketcher.Constraint("Horizontal", 11, 2, 14, 2),
    Sketcher.Constraint("Horizontal", 13, 2, 16, 2),
    Sketcher.Constraint("Horizontal", 15, 2, 18, 2),
    Sketcher.Constraint("Horizontal", 17, 2, 20, 2),
    Sketcher.Constraint("Equal", 7, 9),
    Sketcher.Constraint("Equal", 9, 11),
    Sketcher.Constraint("Equal", 11, 13),
    Sketcher.Constraint("Equal", 13, 15),
    Sketcher.Constraint("Equal", 15, 17),
    Sketcher.Constraint("Equal", 17, 19),
    Sketcher.Constraint("Equal", 19, 21),
    Sketcher.Constraint("Equal", 27, 29),
    Sketcher.Constraint("Equal", 29, 31),
    Sketcher.Constraint("Equal", 28, 32),
    Sketcher.Constraint("DistanceX", 3, 1, 3, 2, Q("9 mm")),
    Sketcher.Constraint("DistanceX", 7, 2, 7, 1, Q("0.5 mm")),
    Sketcher.Constraint("DistanceY", 0, 2, -1, 1, Q("2 mm")),
    Sketcher.Constraint("DistanceY", 0, 2, 0, 1, Q("2.673578 mm")),
    Sketcher.Constraint("DistanceY", 2, 1, 2, 2, Q("2.931806 mm")),
    Sketcher.Constraint("DistanceY", 30, 1, 30, 2, Q("2.675084 mm")),
])
sketch3.setExpression("Constraints[95]", "Params.sketch3_width")
sketch3.setExpression("Constraints[96]", "Params.sketch3_width2")
pocket2 = body.newObject("PartDesign::Pocket", "Pocket001")
pocket2.Profile = sketch3
pocket2.setExpression("Length", "Params.pocket2_length")
pocket2.Reversed = True

# Sketch on YZ plane
sketch4 = body.newObject("Sketcher::SketchObject", "Sketch003")
sketch4.AttachmentSupport = (doc.getObject("YZ_Plane"), [""])
sketch4.MapMode = "FlatFace"
sketch4.AttachmentOffset = App.Placement(Vector(0, 0, -0.2), App.Rotation())
sketch4.addGeometry([
    Part.LineSegment(Vector(4.5, 0, 0), Vector(4.5, 1.5, 0)),  # 0
    Part.LineSegment(Vector(4.5, 1.5, 0), Vector(4.5, 3, 0)),  # 1
    Part.LineSegment(Vector(4.5, 3, 0), Vector(5.5, 2.5, 0)),  # 2
    Part.LineSegment(Vector(5.5, 2.5, 0), Vector(6, 2, 0)),  # 3
    Part.LineSegment(Vector(6, 2, 0), Vector(6, 1, 0)),  # 4
    Part.LineSegment(Vector(6, 1, 0), Vector(5.5, 0.5, 0)),  # 5
    Part.LineSegment(Vector(5.5, 0.5, 0), Vector(4.5, 0, 0)),  # 6
    Part.Circle(Vector(5, 1.5, 0), Vector(0, 0, 1), 0.5),  # 7
    Part.LineSegment(Vector(-4.5, 0, 0), Vector(-5.5, 0.5, 0)),  # 8
    Part.LineSegment(Vector(-5.5, 0.5, 0), Vector(-6, 1, 0)),  # 9
    Part.LineSegment(Vector(-6, 1, 0), Vector(-6, 2, 0)),  # 10
    Part.LineSegment(Vector(-6, 2, 0), Vector(-5.5, 2.5, 0)),  # 11
    Part.LineSegment(Vector(-5.5, 2.5, 0), Vector(-4.5, 3, 0)),  # 12
    Part.LineSegment(Vector(-4.5, 3, 0), Vector(-4.5, 1.5, 0)),  # 13
    Part.LineSegment(Vector(-4.5, 1.5, 0), Vector(-4.5, 0, 0)),  # 14
    Part.Circle(Vector(-5, 1.5, 0), Vector(0, 0, 1), 0.5),  # 15
], False)
sketch4.addConstraint([
    Sketcher.Constraint("Coincident", 0, 2, 1, 1),
    Sketcher.Constraint("Coincident", 1, 2, 2, 1),
    Sketcher.Constraint("Coincident", 2, 2, 3, 1),
    Sketcher.Constraint("Coincident", 3, 2, 4, 1),
    Sketcher.Constraint("Coincident", 4, 2, 5, 1),
    Sketcher.Constraint("Coincident", 5, 2, 6, 1),
    Sketcher.Constraint("Coincident", 6, 2, 0, 1),
    Sketcher.Constraint("Coincident", 8, 2, 9, 1),
    Sketcher.Constraint("Coincident", 9, 2, 10, 1),
    Sketcher.Constraint("Coincident", 10, 2, 11, 1),
    Sketcher.Constraint("Coincident", 11, 2, 12, 1),
    Sketcher.Constraint("Coincident", 12, 2, 13, 1),
    Sketcher.Constraint("Coincident", 13, 2, 14, 1),
    Sketcher.Constraint("Coincident", 14, 2, 8, 1),
    Sketcher.Constraint("Vertical", 0),
    Sketcher.Constraint("Vertical", 1),
    Sketcher.Constraint("Vertical", 4),
    Sketcher.Constraint("Vertical", 10),
    Sketcher.Constraint("Vertical", 13),
    Sketcher.Constraint("Vertical", 14),
    Sketcher.Constraint("Equal", 7, 15),
    Sketcher.Constraint("Symmetric", 6, 2, 14, 2, -1, 1),
    Sketcher.Constraint("Symmetric", 7, 3, 15, 3, -2),
    Sketcher.Constraint("Symmetric", 5, 2, 8, 2, -2),
    Sketcher.Constraint("Symmetric", 4, 2, 9, 2, -2),
    Sketcher.Constraint("Symmetric", 2, 2, 11, 2, -2),
    Sketcher.Constraint("PointOnObject", 6, 2, -1),
    Sketcher.Constraint("Perpendicular", 3, 5),
    Sketcher.Constraint("Parallel", 2, 8),
    Sketcher.Constraint("Perpendicular", 5, 9),
    Sketcher.Constraint("Perpendicular", 9, 11),
    Sketcher.Constraint("Parallel", 6, 12),
    Sketcher.Constraint("Horizontal", 15, 3, 0, 2),
    Sketcher.Constraint("Horizontal", 0, 2, 13, 2),
    Sketcher.Constraint("Vertical", 2, 2, 5, 2),
    Sketcher.Constraint("Equal", 0, 1),
    Sketcher.Constraint("Diameter", 7, Q("1 mm")),
    Sketcher.Constraint("DistanceY", 4, 2, 4, 1, Q("1 mm")),
    Sketcher.Constraint("DistanceY", 0, 1, 0, 2, Q("1.5 mm")),
    Sketcher.Constraint("DistanceX", -1, 1, 7, 3, Q("5 mm")),
    Sketcher.Constraint("DistanceX", -1, 1, 3, 2, Q("6 mm")),
    Sketcher.Constraint("DistanceY", 7, 3, 2, 2, Q("1 mm")),
    Sketcher.Constraint("DistanceX", 1, 2, 2, 2, Q("1 mm")),
])
sketch4.setExpression("Constraints[36]", "Params.sketch4_diameter")
sketch4.setExpression("Constraints[37]", "Params.sketch4_height")
sketch4.setExpression("Constraints[38]", "Params.sketch4_height2")
pad2 = body.newObject("PartDesign::Pad", "Pad001")
pad2.Profile = sketch4
pad2.setExpression("Length", "Params.pad2_length")

doc.recompute()
